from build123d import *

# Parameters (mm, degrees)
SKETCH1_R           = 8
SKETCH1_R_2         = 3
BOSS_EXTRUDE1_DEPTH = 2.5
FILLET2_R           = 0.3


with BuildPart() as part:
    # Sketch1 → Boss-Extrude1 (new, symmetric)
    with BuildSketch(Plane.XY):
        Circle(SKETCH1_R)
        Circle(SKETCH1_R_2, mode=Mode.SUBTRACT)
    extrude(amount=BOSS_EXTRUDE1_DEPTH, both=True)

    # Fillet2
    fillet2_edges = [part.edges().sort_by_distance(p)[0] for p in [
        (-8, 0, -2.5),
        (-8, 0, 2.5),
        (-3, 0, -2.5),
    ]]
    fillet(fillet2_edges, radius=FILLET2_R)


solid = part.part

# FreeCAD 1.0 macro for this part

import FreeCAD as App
import Part
import Sketcher
from FreeCAD import Vector
Q = App.Units.Quantity


def edges_at(feature, points):
    """Names of the edges that pass closest to the given points."""
    edges = feature.Shape.Edges
    near = lambda p: min(range(len(edges)), key=lambda i: edges[i].distToShape(Part.Vertex(*p))[0])
    return sorted({f"Edge{near(p) + 1}" for p in points})

doc = App.newDocument("Part")
body = doc.addObject("PartDesign::Body", "Body")

sketch1 = body.newObject("Sketcher::SketchObject", "Sketch")
sketch1.AttachmentSupport = (doc.getObject("XY_Plane"), [""])
sketch1.MapMode = "FlatFace"
sketch1.addGeometry(Part.Circle(Vector(0, 0, 0), Vector(0, 0, 1), 8), False)
sketch1.addGeometry(Part.Circle(Vector(0, 0, 0), Vector(0, 0, 1), 3), False)
sketch1.addConstraint(Sketcher.Constraint("Coincident", 0, 3, -1, 1))
sketch1.addConstraint(Sketcher.Constraint("Coincident", 1, 3, -1, 1))
sketch1.addConstraint(Sketcher.Constraint("Diameter", 0, Q("16 mm")))
sketch1.addConstraint(Sketcher.Constraint("Diameter", 1, Q("6 mm")))
pad1 = body.newObject("PartDesign::Pad", "Pad")
pad1.Profile = sketch1
pad1.Length = 5
pad1.Midplane = True
doc.recompute()

fillet = body.newObject("PartDesign::Fillet", "Fillet")
fillet.Base = (pad1, edges_at(pad1, [(-8, 0, -2.5), (-8, 0, 2.5), (-3, 0, -2.5)]))
fillet.Radius = 0.3

doc.recompute()
